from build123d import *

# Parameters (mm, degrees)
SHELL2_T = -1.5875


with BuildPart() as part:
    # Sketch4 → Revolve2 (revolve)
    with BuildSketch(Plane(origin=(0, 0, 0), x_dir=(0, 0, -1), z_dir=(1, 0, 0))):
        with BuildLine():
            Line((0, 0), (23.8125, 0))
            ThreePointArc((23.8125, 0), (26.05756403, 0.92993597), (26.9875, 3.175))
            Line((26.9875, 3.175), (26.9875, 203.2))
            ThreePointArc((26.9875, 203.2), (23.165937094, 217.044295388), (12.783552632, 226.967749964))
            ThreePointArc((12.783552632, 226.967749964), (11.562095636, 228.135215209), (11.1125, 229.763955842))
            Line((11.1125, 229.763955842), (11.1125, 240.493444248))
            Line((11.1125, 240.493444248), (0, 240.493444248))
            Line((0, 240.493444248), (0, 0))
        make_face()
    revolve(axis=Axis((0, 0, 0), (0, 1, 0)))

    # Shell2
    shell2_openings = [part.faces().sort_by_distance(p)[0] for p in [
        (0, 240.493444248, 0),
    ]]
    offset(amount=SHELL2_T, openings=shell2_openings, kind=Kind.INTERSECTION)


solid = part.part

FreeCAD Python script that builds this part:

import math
import FreeCAD as App
import Part
import Sketcher
Q = App.Units.Quantity


def faces_at(feature, points):
    """Names of the faces that lie closest to the given points."""
    faces = feature.Shape.Faces
    near = lambda p: min(range(len(faces)), key=lambda i: faces[i].distToShape(Part.Vertex(*p))[0])
    return sorted({f"Face{near(p) + 1}" for p in points})

doc = App.newDocument("Part")
params = doc.addObject("Spreadsheet::Sheet", "Params")
for row, (alias, value) in enumerate([
    ("sketch1_radius", "0.125 in"),
    ("sketch1_radius2", "1.0625 in"),
    ("revolution_angle", "360 deg"),
    ("thickness_wall", "0.0625 in"),
], start=1):
    params.set(f"A{row}", alias)
    params.set(f"B{row}", "=" + value)
    params.setAlias(f"B{row}", alias)

body = doc.addObject("PartDesign::Body", "Body")

# Sketch on YZ plane
sketch1 = body.newObject("Sketcher::SketchObject", "Sketch")
sketch1.AttachmentSupport = (doc.getObject("YZ_Plane"), [""])
sketch1.MapMode = "FlatFace"
sketch1.addGeometry([
    Part.LineSegment(App.Vector(0, 0, 0), App.Vector(0, -23.8125, 0)),  # 0
    Part.ArcOfCircle(Part.Circle(App.Vector(3.175, -23.8125, 0), App.Vector(0, 0, 1), 3.175), math.radians(-180), math.radians(-90)),  # 1
    Part.LineSegment(App.Vector(3.175, -26.9875, 0), App.Vector(203.2, -26.9875, 0)),  # 2
    Part.ArcOfCircle(Part.Circle(App.Vector(203.2, 0, 0), App.Vector(0, 0, 1), 26.9875), math.radians(-90), math.radians(-28.273714)),  # 3
    Part.ArcOfCircle(Part.Circle(App.Vector(229.763956, -14.2875, 0), App.Vector(0, 0, 1), 3.175), math.radians(90), math.radians(151.726286)),  # 4
    Part.LineSegment(App.Vector(229.763956, -11.1125, 0), App.Vector(240.493444, -11.1125, 0)),  # 5
    Part.LineSegment(App.Vector(240.493444, -11.1125, 0), App.Vector(240.493444, 0, 0)),  # 6
    Part.LineSegment(App.Vector(240.493444, 0, 0), App.Vector(0, 0, 0)),  # 7
], False)
sketch1.addConstraint([
    Sketcher.Constraint("Tangent", 0, 2, 1, 1),
    Sketcher.Constraint("Tangent", 1, 2, 2, 1),
    Sketcher.Constraint("Tangent", 2, 2, 3, 1),
    Sketcher.Constraint("Tangent", 3, 2, 4, 2),
    Sketcher.Constraint("Tangent", 4, 1, 5, 1),
    Sketcher.Constraint("Coincident", 5, 2, 6, 1),
    Sketcher.Constraint("Coincident", 6, 2, 7, 1),
    Sketcher.Constraint("Coincident", 7, 2, 0, 1),
    Sketcher.Constraint("Vertical", 0),
    Sketcher.Constraint("Horizontal", 2),
    Sketcher.Constraint("Horizontal", 5),
    Sketcher.Constraint("Vertical", 6),
    Sketcher.Constraint("Horizontal", 7),
    Sketcher.Constraint("Coincident", 7, 2, -1, 1),
    Sketcher.Constraint("Equal", 1, 4),
    Sketcher.Constraint("PointOnObject", 3, 3, -1),
    Sketcher.Constraint("DistanceX", -1, 1, 3, 3, Q("8 in")),
    Sketcher.Constraint("Radius", 1, Q("0.125 in")),
    Sketcher.Constraint("Radius", 3, Q("1.0625 in")),
    Sketcher.Constraint("DistanceY", 1, 2, 4, 3, Q("0.5 in")),
    Sketcher.Constraint("DistanceX", 5, 1, 5, 2, 10.729488),
])
sketch1.setExpression("Constraints[17]", "Params.sketch1_radius")
sketch1.setExpression("Constraints[18]", "Params.sketch1_radius2")
revolution = body.newObject("PartDesign::Revolution", "Revolution")
revolution.Profile = sketch1
revolution.ReferenceAxis = (sketch1, ["H_Axis"])
revolution.setExpression("Angle", "Params.revolution_angle")
doc.recompute()

thickness = body.newObject("PartDesign::Thickness", "Thickness")
thickness.Base = (revolution, faces_at(revolution, [(0, 240.493, 0)]))
thickness.setExpression("Value", "Params.thickness_wall")
thickness.Reversed = True
thickness.Join = "Intersection"

doc.recompute()
